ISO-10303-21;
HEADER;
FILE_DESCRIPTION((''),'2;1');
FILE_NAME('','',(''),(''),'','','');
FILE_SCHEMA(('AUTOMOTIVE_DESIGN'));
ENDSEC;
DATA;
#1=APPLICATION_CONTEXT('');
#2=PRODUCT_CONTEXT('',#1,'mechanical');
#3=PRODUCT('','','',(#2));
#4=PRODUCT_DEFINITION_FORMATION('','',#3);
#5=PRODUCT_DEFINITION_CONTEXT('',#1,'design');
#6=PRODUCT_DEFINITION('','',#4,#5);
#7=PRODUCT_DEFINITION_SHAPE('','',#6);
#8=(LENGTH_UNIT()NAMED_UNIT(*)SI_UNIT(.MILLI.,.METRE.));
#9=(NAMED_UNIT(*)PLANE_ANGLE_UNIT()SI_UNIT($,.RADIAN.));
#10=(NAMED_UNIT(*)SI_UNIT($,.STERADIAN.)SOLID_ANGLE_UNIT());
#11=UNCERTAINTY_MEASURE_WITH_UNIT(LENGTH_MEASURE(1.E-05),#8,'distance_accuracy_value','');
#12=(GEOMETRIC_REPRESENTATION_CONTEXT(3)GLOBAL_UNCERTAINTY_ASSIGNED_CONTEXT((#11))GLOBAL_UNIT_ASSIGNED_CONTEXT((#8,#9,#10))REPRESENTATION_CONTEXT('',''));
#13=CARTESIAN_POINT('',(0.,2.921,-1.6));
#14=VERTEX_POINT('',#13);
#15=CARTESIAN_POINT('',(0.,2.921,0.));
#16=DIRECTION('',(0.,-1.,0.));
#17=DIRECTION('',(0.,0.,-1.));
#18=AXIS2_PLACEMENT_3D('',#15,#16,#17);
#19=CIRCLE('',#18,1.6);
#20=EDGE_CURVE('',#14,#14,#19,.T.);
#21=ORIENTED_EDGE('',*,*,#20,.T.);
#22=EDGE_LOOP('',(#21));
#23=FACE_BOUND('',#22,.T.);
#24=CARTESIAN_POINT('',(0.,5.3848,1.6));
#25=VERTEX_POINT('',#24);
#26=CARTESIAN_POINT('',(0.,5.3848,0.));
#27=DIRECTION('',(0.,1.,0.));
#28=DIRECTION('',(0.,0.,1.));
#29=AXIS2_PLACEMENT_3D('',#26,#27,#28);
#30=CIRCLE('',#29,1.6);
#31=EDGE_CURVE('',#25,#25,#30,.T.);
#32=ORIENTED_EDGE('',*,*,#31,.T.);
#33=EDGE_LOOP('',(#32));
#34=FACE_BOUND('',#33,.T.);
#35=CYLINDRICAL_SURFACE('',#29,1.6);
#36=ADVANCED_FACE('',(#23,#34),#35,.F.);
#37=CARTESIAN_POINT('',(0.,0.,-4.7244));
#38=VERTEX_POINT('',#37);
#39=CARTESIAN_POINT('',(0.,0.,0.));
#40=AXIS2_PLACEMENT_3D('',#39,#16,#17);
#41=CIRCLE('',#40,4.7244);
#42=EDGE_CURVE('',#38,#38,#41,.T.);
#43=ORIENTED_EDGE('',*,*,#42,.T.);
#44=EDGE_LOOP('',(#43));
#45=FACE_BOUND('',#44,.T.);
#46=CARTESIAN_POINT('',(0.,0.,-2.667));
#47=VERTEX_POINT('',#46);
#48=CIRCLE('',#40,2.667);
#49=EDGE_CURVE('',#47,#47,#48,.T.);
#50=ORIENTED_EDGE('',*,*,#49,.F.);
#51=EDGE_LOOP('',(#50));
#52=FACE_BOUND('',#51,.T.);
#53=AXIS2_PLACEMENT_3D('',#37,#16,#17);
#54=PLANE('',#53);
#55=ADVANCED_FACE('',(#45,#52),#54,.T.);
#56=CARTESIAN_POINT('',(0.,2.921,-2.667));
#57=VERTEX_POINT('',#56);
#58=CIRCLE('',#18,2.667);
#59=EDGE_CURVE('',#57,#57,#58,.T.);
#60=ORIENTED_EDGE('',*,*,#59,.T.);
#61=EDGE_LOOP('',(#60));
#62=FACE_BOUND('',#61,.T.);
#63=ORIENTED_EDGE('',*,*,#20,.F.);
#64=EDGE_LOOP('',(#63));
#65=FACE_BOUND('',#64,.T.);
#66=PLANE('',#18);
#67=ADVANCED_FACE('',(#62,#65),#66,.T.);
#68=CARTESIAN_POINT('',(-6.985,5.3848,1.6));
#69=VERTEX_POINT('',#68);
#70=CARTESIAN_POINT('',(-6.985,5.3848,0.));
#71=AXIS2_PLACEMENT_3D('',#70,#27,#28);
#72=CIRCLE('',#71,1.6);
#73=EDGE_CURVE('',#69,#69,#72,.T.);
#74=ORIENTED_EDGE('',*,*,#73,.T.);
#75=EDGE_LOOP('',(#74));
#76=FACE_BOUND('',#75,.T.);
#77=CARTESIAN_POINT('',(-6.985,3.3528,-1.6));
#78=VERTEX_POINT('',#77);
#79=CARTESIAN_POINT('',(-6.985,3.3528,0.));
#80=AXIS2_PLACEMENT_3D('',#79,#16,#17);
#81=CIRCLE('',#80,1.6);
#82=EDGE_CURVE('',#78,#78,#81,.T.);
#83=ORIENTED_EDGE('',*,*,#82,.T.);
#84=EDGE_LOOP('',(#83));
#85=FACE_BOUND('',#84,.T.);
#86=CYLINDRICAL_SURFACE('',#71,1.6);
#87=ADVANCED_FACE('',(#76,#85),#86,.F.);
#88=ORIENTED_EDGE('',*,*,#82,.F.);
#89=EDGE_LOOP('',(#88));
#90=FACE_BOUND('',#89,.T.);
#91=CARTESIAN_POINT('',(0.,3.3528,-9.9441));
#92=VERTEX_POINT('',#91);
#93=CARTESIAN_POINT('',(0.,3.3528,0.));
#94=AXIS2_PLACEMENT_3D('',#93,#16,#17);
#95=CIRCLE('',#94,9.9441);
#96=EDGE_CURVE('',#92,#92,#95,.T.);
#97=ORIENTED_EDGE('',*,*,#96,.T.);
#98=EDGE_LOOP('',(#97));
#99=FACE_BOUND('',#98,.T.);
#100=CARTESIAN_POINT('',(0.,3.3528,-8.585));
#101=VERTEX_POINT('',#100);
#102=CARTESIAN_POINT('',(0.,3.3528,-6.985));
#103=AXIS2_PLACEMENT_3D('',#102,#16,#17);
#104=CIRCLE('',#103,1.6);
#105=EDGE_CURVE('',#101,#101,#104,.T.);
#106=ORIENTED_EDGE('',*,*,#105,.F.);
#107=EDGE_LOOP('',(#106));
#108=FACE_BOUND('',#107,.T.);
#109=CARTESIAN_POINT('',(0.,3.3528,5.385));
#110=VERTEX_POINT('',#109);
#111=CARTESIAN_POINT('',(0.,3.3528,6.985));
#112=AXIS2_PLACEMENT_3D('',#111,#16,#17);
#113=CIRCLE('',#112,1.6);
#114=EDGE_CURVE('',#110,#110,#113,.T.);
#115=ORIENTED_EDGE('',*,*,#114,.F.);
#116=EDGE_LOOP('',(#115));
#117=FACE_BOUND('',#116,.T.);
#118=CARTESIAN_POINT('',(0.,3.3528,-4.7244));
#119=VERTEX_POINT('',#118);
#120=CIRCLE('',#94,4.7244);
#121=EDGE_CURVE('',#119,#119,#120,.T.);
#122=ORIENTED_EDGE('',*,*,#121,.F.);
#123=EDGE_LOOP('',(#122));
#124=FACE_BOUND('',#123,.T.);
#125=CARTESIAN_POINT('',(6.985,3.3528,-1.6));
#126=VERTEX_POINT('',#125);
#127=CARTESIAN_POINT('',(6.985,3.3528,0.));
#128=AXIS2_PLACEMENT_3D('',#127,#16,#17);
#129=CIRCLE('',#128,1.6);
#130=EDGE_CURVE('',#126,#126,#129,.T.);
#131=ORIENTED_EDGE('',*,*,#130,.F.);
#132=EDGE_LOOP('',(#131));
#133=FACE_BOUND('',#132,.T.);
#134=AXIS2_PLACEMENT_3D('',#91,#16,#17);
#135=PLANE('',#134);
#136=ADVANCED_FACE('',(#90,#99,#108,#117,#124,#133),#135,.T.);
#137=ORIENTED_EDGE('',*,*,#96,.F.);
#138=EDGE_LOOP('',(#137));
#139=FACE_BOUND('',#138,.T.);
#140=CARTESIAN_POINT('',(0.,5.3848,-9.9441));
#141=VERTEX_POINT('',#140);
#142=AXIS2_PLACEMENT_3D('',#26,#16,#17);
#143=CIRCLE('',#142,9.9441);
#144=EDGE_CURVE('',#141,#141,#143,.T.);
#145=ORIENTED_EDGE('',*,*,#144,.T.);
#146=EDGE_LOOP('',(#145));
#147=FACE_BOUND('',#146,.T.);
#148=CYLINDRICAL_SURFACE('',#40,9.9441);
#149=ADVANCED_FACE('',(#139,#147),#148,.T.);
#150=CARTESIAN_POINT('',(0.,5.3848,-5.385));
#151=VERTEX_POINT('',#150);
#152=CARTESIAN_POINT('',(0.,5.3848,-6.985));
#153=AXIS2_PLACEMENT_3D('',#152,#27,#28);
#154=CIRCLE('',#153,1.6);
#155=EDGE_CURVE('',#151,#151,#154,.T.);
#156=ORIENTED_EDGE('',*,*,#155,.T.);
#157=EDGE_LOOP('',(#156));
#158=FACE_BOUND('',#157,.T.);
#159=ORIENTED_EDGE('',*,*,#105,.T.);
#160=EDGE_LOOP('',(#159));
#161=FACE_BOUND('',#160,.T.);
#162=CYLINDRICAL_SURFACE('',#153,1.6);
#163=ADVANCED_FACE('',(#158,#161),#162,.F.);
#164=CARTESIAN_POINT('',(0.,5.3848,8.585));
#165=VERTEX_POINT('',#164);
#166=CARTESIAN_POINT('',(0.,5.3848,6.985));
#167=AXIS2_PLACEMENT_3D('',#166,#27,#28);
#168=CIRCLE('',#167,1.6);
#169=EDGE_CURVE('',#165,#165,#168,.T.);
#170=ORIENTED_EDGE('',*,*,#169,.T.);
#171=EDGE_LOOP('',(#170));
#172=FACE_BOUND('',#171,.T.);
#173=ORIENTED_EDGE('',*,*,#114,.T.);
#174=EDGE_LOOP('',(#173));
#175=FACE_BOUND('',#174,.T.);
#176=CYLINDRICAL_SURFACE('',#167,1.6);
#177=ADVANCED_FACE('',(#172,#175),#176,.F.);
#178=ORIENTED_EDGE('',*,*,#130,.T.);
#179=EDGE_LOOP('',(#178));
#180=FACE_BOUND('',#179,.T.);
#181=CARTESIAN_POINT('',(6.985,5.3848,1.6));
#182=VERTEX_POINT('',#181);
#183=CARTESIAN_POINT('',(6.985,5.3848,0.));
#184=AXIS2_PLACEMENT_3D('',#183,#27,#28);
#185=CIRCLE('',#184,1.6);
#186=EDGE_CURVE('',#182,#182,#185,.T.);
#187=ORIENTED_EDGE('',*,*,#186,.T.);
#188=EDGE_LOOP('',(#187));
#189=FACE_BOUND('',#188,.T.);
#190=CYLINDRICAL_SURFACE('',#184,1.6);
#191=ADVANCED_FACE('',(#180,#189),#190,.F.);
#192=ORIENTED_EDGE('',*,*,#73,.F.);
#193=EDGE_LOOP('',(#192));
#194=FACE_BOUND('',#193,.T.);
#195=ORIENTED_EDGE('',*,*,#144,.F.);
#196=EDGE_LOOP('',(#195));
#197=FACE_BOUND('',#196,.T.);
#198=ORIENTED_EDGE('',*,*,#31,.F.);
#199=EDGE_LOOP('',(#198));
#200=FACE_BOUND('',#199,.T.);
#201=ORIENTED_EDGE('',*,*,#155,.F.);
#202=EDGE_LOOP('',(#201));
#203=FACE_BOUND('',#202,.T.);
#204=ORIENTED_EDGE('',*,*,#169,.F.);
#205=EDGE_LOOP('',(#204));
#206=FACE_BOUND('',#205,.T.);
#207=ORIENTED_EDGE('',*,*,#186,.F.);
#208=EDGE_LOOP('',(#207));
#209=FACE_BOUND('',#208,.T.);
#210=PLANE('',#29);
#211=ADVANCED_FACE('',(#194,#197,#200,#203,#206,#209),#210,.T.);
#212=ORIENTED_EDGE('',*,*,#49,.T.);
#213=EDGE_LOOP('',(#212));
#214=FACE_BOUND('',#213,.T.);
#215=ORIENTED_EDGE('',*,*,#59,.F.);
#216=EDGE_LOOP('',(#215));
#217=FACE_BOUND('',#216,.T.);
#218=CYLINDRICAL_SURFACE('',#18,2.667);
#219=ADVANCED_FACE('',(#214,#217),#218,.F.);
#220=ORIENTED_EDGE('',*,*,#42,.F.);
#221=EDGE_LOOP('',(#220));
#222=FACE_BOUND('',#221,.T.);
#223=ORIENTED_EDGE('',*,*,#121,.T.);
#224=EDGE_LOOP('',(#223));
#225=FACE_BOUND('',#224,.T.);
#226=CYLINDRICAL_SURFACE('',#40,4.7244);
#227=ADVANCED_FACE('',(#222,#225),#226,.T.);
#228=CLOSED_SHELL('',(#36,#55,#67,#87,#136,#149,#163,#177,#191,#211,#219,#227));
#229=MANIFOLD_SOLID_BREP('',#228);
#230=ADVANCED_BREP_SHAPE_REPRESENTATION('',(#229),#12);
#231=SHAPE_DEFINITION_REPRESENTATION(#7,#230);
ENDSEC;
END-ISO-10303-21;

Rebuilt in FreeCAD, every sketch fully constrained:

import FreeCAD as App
import Part
import Sketcher
from FreeCAD import Vector
Q = App.Units.Quantity

doc = App.newDocument("Part")
body = doc.addObject("PartDesign::Body", "Body")

# Sketch on YZ plane
sketch1 = body.newObject("Sketcher::SketchObject", "Sketch")
sketch1.AttachmentSupport = (doc.getObject("YZ_Plane"), [""])
sketch1.MapMode = "FlatFace"
sketch1.addGeometry([
    Part.LineSegment(Vector(5.3848, -9.9441, 0), Vector(5.3848, 0, 0)),  # 0
    Part.LineSegment(Vector(5.3848, 0, 0), Vector(0, 0, 0)),  # 1
    Part.LineSegment(Vector(0, 0, 0), Vector(0, -4.7244, 0)),  # 2
    Part.LineSegment(Vector(0, -4.7244, 0), Vector(3.3528, -4.7244, 0)),  # 3
    Part.LineSegment(Vector(3.3528, -4.7244, 0), Vector(3.3528, -9.9441, 0)),  # 4
    Part.LineSegment(Vector(3.3528, -9.9441, 0), Vector(5.3848, -9.9441, 0)),  # 5
], False)
sketch1.addConstraint([
    Sketcher.Constraint("Coincident", 0, 2, 1, 1),
    Sketcher.Constraint("Coincident", 1, 2, 2, 1),
    Sketcher.Constraint("Coincident", 2, 2, 3, 1),
    Sketcher.Constraint("Coincident", 3, 2, 4, 1),
    Sketcher.Constraint("Coincident", 4, 2, 5, 1),
    Sketcher.Constraint("Coincident", 5, 2, 0, 1),
    Sketcher.Constraint("Vertical", 0),
    Sketcher.Constraint("Horizontal", 1),
    Sketcher.Constraint("Vertical", 2),
    Sketcher.Constraint("Horizontal", 3),
    Sketcher.Constraint("Vertical", 4),
    Sketcher.Constraint("Horizontal", 5),
    Sketcher.Constraint("Coincident", 1, 2, -1, 1),
    Sketcher.Constraint("DistanceX", 5, 1, 5, 2, Q("0.08 in")),
    Sketcher.Constraint("DistanceX", 1, 2, 1, 1, Q("0.212 in")),
    Sketcher.Constraint("DistanceY", 2, 2, 2, 1, Q("0.186 in")),
    Sketcher.Constraint("DistanceY", 0, 1, 0, 2, Q("0.3915 in")),
])
revolution = body.newObject("PartDesign::Revolution", "Revolution")
revolution.Profile = sketch1
revolution.ReferenceAxis = (sketch1, ["H_Axis"])
revolution.Angle = 360

# Sketch on XZ plane
sketch2 = body.newObject("Sketcher::SketchObject", "Sketch001")
sketch2.AttachmentSupport = (doc.getObject("XZ_Plane"), [""])
sketch2.MapMode = "FlatFace"
sketch2.addGeometry(Part.Circle(Vector(0, 0, 0), Vector(0, 0, 1), 2.667), False)
sketch2.addConstraint([
    Sketcher.Constraint("Coincident", 0, 3, -1, 1),
    Sketcher.Constraint("Diameter", 0, Q("0.21 in")),
])
pocket1 = body.newObject("PartDesign::Pocket", "Pocket")
pocket1.Profile = sketch2
pocket1.Length = Q("0.115 in")

# Sketch on XZ plane
sketch3 = body.newObject("Sketcher::SketchObject", "Sketch002")
sketch3.AttachmentSupport = (doc.getObject("XZ_Plane"), [""])
sketch3.MapMode = "FlatFace"
sketch3.AttachmentOffset = App.Placement(Vector(0, 0, -0.212 * 25.4), App.Rotation())
sketch3.addGeometry([
    Part.Circle(Vector(-6.985, 0, 0), Vector(0, 0, 1), 1.6),  # 0
    Part.Circle(Vector(0, 0, 0), Vector(0, 0, 1), 1.6),  # 1
    Part.Circle(Vector(6.985, 0, 0), Vector(0, 0, 1), 1.6),  # 2
    Part.Circle(Vector(0, -6.985, 0), Vector(0, 0, 1), 1.6),  # 3
    Part.Circle(Vector(0, 6.985, 0), Vector(0, 0, 1), 1.6),  # 4
], False)
sketch3.addConstraint([
    Sketcher.Constraint("Coincident", 1, 3, -1, 1),
    Sketcher.Constraint("Equal", 0, 1),
    Sketcher.Constraint("Equal", 1, 2),
    Sketcher.Constraint("Equal", 2, 3),
    Sketcher.Constraint("Equal", 3, 4),
    Sketcher.Constraint("Symmetric", 0, 3, 2, 3, -1, 1),
    Sketcher.Constraint("Symmetric", 3, 3, 4, 3, -1, 1),
    Sketcher.Constraint("PointOnObject", 0, 3, -1),
    Sketcher.Constraint("PointOnObject", 3, 3, -2),
    Sketcher.Constraint("Diameter", 0, Q("3.2 mm")),
    Sketcher.Constraint("DistanceX", 0, 3, 2, 3, Q("0.55 in")),
    Sketcher.Constraint("DistanceY", 3, 3, 4, 3, Q("0.55 in")),
])
doc.recompute()
hole = body.newObject("PartDesign::Hole", "Hole")
hole.Profile = sketch3
hole.ThreadType = "None"
hole.Diameter = 3.2
hole.DepthType = "ThroughAll"
hole.Reversed = True

doc.recompute()
